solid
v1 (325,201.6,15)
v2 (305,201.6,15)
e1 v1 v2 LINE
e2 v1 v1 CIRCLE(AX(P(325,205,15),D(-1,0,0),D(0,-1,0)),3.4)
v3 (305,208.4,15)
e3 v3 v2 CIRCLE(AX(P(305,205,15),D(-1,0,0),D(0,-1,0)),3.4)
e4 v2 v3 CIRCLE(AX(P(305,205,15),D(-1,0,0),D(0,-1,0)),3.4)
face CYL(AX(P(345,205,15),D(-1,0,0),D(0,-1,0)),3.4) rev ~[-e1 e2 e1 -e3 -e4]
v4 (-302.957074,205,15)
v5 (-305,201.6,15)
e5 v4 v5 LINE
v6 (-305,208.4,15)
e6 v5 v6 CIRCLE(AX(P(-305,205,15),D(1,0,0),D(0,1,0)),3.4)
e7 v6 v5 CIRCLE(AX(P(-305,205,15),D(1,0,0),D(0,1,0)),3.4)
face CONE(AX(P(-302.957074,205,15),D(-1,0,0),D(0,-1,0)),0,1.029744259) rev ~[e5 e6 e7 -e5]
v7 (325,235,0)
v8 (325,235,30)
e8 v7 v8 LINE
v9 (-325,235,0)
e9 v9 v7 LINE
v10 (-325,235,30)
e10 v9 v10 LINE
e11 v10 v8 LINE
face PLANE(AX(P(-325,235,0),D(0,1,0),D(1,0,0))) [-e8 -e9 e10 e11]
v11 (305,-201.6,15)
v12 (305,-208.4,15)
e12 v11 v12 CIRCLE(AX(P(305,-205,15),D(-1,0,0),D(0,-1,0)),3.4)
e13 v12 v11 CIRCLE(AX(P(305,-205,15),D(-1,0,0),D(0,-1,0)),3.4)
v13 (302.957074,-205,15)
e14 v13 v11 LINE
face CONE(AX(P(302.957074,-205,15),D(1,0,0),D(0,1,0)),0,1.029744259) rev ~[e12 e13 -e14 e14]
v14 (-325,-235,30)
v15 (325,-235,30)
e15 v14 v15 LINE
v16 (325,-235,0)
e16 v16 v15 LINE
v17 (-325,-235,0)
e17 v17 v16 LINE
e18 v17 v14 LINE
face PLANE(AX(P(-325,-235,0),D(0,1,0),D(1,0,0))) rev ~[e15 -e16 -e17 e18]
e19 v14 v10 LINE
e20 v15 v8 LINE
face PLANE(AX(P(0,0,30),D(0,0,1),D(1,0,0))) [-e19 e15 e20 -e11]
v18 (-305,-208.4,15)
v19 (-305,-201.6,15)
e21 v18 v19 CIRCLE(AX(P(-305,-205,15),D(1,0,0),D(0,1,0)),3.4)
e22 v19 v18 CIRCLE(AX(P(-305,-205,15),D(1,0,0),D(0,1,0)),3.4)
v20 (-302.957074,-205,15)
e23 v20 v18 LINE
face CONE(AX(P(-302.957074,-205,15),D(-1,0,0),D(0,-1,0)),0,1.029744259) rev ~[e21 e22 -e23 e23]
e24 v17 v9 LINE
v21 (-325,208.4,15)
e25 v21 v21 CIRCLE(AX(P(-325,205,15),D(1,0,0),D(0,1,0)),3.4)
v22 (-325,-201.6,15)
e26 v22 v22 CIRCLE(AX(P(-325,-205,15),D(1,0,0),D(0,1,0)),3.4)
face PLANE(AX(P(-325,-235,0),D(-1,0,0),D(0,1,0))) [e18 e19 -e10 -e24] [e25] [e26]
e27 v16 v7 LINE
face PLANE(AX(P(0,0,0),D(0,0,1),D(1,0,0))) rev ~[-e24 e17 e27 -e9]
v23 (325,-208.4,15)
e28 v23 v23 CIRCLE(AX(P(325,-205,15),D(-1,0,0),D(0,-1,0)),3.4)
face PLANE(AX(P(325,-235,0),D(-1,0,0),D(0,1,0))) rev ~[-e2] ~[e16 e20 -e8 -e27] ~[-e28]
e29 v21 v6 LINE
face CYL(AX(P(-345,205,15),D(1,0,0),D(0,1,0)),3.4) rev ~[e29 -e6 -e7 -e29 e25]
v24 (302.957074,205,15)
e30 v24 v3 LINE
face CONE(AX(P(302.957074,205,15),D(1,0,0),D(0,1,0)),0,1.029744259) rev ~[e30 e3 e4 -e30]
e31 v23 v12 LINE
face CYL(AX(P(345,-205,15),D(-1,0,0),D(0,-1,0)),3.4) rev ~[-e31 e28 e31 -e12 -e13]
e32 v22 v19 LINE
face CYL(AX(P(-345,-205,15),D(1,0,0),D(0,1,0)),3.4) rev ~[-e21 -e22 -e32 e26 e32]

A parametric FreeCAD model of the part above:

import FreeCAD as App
import Part
import Sketcher

doc = App.newDocument("Part")
body = doc.addObject("PartDesign::Body", "Body")

sketch1 = body.newObject("Sketcher::SketchObject", "Sketch")
sketch1.AttachmentSupport = (doc.getObject("XY_Plane"), [""])
sketch1.MapMode = "FlatFace"
sketch1.addGeometry(Part.LineSegment(App.Vector(-325, 235, 0), App.Vector(-325, -235, 0)), False)
sketch1.addGeometry(Part.LineSegment(App.Vector(-325, -235, 0), App.Vector(325, -235, 0)), False)
sketch1.addGeometry(Part.LineSegment(App.Vector(325, -235, 0), App.Vector(325, 235, 0)), False)
sketch1.addGeometry(Part.LineSegment(App.Vector(325, 235, 0), App.Vector(-325, 235, 0)), False)
sketch1.addConstraint(Sketcher.Constraint("Coincident", 0, 2, 1, 1))
sketch1.addConstraint(Sketcher.Constraint("Coincident", 1, 2, 2, 1))
sketch1.addConstraint(Sketcher.Constraint("Coincident", 2, 2, 3, 1))
sketch1.addConstraint(Sketcher.Constraint("Coincident", 3, 2, 0, 1))
sketch1.addConstraint(Sketcher.Constraint("Vertical", 0))
sketch1.addConstraint(Sketcher.Constraint("Horizontal", 1))
sketch1.addConstraint(Sketcher.Constraint("Vertical", 2))
sketch1.addConstraint(Sketcher.Constraint("Horizontal", 3))
sketch1.addConstraint(Sketcher.Constraint("Symmetric", 0, 2, 2, 2, -1, 1))
sketch1.addConstraint(Sketcher.Constraint("DistanceX", 1, 1, 1, 2, 650.0))
sketch1.addConstraint(Sketcher.Constraint("DistanceY", 0, 2, 0, 1, 470.0))
pad1 = body.newObject("PartDesign::Pad", "Pad")
pad1.Profile = sketch1
pad1.Length = 30

sketch2 = body.newObject("Sketcher::SketchObject", "Sketch001")
sketch2.AttachmentSupport = (doc.getObject("YZ_Plane"), [""])
sketch2.MapMode = "FlatFace"
sketch2.AttachmentOffset = App.Placement(App.Vector(0, 0, 325), App.Rotation())
sketch2.addGeometry(Part.Circle(App.Vector(-205, 15, 0), App.Vector(0, 0, 1), 3.4), False)
sketch2.addGeometry(Part.Circle(App.Vector(205, 15, 0), App.Vector(0, 0, 1), 3.4), False)
sketch2.addConstraint(Sketcher.Constraint("Equal", 0, 1))
sketch2.addConstraint(Sketcher.Constraint("Symmetric", 0, 3, 1, 3, -2))
sketch2.addConstraint(Sketcher.Constraint("Diameter", 0, 6.8))
sketch2.addConstraint(Sketcher.Constraint("DistanceX", 0, 3, -1, 1, 205.0))
sketch2.addConstraint(Sketcher.Constraint("DistanceY", -1, 1, 0, 3, 15.0))
doc.recompute()
hole = body.newObject("PartDesign::Hole", "Hole")
hole.Profile = sketch2
hole.ThreadType = "None"
hole.Diameter = 6.8
hole.DepthType = "Dimension"
hole.Depth = 20
hole.DrillPoint = "Angled"
hole.DrillPointAngle = 118

sketch3 = body.newObject("Sketcher::SketchObject", "Sketch002")
sketch3.AttachmentSupport = (doc.getObject("YZ_Plane"), [""])
sketch3.MapMode = "FlatFace"
sketch3.AttachmentOffset = App.Placement(App.Vector(0, 0, -325), App.Rotation())
sketch3.addGeometry(Part.Circle(App.Vector(205, 15, 0), App.Vector(0, 0, 1), 3.4), False)
sketch3.addGeometry(Part.Circle(App.Vector(-205, 15, 0), App.Vector(0, 0, 1), 3.4), False)
sketch3.addConstraint(Sketcher.Constraint("Equal", 0, 1))
sketch3.addConstraint(Sketcher.Constraint("Symmetric", 0, 3, 1, 3, -2))
sketch3.addConstraint(Sketcher.Constraint("Diameter", 0, 6.8))
sketch3.addConstraint(Sketcher.Constraint("DistanceX", -1, 1, 0, 3, 205.0))
sketch3.addConstraint(Sketcher.Constraint("DistanceY", -1, 1, 0, 3, 15.0))
doc.recompute()
hole2 = body.newObject("PartDesign::Hole", "Hole001")
hole2.Profile = sketch3
hole2.ThreadType = "None"
hole2.Diameter = 6.8
hole2.DepthType = "Dimension"
hole2.Depth = 20
hole2.DrillPoint = "Angled"
hole2.DrillPointAngle = 118
hole2.Reversed = True

doc.recompute()
